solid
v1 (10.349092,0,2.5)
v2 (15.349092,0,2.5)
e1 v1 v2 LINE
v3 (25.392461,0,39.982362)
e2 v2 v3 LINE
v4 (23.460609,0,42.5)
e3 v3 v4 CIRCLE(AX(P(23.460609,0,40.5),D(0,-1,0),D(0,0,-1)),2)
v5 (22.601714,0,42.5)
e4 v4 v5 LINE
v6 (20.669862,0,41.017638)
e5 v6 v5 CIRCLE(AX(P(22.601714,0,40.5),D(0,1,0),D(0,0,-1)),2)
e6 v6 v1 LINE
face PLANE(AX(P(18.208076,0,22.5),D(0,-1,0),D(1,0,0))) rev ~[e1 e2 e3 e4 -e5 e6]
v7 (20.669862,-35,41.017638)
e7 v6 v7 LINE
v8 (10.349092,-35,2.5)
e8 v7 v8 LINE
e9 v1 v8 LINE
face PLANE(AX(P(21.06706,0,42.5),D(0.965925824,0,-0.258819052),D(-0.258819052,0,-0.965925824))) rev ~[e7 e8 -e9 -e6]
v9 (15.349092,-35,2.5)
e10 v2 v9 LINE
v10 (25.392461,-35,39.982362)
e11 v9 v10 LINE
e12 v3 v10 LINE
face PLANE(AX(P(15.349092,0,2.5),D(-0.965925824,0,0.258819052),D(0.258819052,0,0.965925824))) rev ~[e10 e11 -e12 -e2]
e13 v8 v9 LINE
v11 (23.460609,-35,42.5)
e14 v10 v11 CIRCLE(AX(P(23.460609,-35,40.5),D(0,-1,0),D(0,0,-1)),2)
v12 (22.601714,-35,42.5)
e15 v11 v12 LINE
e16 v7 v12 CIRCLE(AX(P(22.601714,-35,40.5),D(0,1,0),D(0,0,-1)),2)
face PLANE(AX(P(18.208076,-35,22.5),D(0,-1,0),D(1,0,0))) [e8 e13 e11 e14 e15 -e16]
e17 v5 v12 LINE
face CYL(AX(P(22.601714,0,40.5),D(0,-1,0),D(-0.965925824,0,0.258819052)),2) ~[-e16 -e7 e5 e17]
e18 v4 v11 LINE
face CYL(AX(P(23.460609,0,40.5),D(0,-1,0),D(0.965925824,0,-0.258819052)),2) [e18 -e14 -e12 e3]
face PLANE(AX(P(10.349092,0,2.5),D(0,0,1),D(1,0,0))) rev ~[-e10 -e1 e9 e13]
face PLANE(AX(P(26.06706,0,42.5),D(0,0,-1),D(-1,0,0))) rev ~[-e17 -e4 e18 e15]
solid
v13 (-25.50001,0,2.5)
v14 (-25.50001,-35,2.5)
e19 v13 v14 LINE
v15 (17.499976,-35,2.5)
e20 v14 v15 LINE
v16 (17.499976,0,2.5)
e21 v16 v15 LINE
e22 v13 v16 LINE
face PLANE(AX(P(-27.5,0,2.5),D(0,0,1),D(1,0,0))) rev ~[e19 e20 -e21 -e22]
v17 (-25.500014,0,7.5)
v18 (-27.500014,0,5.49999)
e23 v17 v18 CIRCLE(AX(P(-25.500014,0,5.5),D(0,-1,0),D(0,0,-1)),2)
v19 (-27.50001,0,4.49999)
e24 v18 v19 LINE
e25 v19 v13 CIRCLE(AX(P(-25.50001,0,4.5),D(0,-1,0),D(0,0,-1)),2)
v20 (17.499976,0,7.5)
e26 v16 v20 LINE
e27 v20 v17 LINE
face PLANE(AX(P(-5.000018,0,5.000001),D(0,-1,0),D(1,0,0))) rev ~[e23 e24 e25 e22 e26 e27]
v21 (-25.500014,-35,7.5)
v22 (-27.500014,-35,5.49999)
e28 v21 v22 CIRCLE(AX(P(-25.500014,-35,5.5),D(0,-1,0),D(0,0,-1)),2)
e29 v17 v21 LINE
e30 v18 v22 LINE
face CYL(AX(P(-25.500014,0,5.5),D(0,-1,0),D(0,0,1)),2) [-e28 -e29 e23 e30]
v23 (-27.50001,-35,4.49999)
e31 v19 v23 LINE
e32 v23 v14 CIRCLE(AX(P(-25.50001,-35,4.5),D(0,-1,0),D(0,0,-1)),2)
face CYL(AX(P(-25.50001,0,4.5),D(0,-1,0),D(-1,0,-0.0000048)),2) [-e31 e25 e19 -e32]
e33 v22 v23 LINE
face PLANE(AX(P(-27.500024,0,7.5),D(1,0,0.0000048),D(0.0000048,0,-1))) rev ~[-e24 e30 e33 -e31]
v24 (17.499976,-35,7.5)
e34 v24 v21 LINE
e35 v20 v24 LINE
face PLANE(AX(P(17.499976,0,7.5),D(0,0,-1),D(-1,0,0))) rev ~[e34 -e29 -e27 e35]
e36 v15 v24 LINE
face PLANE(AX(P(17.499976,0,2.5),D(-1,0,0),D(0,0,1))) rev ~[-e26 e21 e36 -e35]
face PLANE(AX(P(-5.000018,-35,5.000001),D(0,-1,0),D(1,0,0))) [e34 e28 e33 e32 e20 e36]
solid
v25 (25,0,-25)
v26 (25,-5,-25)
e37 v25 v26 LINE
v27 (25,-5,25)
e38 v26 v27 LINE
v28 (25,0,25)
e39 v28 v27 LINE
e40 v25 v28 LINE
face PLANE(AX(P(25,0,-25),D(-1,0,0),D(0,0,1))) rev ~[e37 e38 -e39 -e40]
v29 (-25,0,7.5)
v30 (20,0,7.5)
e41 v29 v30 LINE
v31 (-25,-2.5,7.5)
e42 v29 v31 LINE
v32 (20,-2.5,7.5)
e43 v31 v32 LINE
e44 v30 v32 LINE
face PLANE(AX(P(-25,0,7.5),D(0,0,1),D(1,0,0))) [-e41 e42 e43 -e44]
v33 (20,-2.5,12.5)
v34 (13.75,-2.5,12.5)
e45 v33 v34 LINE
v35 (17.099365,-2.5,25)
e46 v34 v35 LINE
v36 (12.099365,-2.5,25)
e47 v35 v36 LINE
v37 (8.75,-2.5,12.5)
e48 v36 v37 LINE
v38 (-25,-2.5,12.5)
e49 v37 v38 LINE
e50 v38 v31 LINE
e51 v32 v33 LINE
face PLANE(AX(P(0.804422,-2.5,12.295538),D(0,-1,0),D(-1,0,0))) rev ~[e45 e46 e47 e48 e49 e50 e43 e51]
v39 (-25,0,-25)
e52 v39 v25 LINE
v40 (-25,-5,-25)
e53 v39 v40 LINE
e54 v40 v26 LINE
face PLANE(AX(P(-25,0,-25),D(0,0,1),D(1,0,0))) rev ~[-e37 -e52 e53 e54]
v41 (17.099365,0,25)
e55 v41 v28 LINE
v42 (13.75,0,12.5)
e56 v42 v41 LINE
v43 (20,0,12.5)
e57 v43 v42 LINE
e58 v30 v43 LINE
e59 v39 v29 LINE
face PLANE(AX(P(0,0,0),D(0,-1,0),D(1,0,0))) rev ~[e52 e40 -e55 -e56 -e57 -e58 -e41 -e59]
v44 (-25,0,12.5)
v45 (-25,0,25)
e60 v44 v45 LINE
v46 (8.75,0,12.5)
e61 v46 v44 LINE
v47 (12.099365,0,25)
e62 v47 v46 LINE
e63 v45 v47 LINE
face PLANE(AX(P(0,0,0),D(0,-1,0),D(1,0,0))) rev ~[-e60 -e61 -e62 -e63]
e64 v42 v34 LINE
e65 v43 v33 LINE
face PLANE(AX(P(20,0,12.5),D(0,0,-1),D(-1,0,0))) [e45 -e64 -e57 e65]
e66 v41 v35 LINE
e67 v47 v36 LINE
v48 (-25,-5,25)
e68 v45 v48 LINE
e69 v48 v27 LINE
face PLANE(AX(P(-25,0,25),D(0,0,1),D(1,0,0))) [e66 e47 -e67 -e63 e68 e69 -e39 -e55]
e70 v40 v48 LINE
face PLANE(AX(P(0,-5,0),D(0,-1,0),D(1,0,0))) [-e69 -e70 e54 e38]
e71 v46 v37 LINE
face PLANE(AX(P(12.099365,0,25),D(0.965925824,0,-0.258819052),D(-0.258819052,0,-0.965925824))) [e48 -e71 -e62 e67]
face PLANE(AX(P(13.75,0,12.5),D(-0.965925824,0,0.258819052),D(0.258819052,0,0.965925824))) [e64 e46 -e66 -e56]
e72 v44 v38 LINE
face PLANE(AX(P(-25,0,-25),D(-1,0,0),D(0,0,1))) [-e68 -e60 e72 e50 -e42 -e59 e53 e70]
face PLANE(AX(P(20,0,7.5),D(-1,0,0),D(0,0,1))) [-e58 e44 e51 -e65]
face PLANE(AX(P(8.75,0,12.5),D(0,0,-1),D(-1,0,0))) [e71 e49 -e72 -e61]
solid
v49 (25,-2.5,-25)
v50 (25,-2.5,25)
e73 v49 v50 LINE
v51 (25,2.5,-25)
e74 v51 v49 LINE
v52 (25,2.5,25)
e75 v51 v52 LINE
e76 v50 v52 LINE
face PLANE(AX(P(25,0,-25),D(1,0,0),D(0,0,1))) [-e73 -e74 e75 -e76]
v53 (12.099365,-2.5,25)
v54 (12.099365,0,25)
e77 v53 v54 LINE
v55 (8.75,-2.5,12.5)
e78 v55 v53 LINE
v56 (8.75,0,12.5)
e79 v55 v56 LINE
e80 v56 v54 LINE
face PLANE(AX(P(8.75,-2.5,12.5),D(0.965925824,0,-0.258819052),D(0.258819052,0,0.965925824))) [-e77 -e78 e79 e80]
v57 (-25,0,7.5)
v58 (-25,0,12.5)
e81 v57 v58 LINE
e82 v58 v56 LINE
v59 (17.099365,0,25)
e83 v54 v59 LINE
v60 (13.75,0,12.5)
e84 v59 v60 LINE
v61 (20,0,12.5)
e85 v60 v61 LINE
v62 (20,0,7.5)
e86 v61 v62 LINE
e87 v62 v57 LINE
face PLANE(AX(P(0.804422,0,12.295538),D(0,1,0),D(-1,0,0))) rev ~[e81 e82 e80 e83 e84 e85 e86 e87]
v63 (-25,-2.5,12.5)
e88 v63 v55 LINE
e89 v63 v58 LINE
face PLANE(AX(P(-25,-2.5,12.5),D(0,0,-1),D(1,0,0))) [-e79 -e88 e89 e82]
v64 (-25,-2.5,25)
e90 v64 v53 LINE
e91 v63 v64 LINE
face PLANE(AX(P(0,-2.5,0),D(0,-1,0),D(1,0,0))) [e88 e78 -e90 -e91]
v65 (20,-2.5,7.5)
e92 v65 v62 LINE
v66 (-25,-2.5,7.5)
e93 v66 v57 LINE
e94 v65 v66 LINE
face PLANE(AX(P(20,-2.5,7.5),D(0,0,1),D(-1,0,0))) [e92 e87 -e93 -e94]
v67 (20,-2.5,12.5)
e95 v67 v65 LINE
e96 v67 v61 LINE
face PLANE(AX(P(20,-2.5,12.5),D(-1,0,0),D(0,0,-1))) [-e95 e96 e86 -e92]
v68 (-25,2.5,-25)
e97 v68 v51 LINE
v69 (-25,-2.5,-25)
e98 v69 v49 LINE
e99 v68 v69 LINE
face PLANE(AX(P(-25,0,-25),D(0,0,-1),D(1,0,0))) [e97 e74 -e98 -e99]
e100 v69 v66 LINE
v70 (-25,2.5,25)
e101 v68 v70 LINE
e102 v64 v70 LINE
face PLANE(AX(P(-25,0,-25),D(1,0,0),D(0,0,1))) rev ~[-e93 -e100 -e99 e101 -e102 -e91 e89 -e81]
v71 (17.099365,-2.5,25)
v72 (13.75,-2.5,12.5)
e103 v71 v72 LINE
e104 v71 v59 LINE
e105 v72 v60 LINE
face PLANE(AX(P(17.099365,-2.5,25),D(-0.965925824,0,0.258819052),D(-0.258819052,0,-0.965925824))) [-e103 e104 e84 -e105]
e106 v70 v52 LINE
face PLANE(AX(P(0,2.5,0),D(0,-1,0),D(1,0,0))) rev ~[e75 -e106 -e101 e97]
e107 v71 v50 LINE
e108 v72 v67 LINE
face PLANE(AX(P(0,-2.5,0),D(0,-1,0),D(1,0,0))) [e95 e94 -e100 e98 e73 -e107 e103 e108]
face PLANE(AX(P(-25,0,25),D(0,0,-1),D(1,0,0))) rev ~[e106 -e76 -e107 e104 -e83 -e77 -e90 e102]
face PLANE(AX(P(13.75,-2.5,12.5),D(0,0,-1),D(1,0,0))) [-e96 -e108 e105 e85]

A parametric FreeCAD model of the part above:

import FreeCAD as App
import Part
import Sketcher
from FreeCAD import Vector
Q = App.Units.Quantity


def edges_at(feature, points):
    """Names of the edges that pass closest to the given points."""
    edges = feature.Shape.Edges
    near = lambda p: min(range(len(edges)), key=lambda i: edges[i].distToShape(Part.Vertex(*p))[0])
    return sorted({f"Edge{near(p) + 1}" for p in points})

doc = App.newDocument("Part")
params = doc.addObject("Spreadsheet::Sheet", "Params")
for row, (alias, value) in enumerate([
    ("sketch1_width", "50 mm"),
    ("pad1_length", "5 mm"),
    ("sketch2_width", "45 mm"),
    ("sketch2_width2", "5 mm"),
    ("sketch2_width3", "6.25 mm"),
    ("pocket1_length", "2.5 mm"),
    ("sketch3_width", "45 mm"),
    ("sketch3_height", "5 mm"),
    ("pad2_length", "35 mm"),
    ("fillet_radius", "2 mm"),
    ("sketch4_width", "5 mm"),
    ("pad3_length", "35 mm"),
    ("fillet2_radius", "2 mm"),
    ("sketch5_width", "50 mm"),
    ("pad4_length", "5 mm"),
    ("sketch6_width", "5 mm"),
    ("sketch6_width2", "45 mm"),
    ("sketch6_width3", "33.75 mm"),
    ("pocket2_length", "2.5 mm"),
], start=1):
    params.set(f"A{row}", alias)
    params.set(f"B{row}", "=" + value)
    params.setAlias(f"B{row}", alias)

body = doc.addObject("PartDesign::Body", "Body")

sketch1 = body.newObject("Sketcher::SketchObject", "Sketch")
sketch1.AttachmentSupport = (doc.getObject("XZ_Plane"), [""])
sketch1.MapMode = "FlatFace"
sketch1.addGeometry(Part.LineSegment(Vector(-25, 25, 0), Vector(-25, -25, 0)), False)
sketch1.addGeometry(Part.LineSegment(Vector(-25, -25, 0), Vector(25, -25, 0)), False)
sketch1.addGeometry(Part.LineSegment(Vector(25, -25, 0), Vector(25, 25, 0)), False)
sketch1.addGeometry(Part.LineSegment(Vector(25, 25, 0), Vector(-25, 25, 0)), False)
sketch1.addConstraint(Sketcher.Constraint("Coincident", 0, 2, 1, 1))
sketch1.addConstraint(Sketcher.Constraint("Coincident", 1, 2, 2, 1))
sketch1.addConstraint(Sketcher.Constraint("Coincident", 2, 2, 3, 1))
sketch1.addConstraint(Sketcher.Constraint("Coincident", 3, 2, 0, 1))
sketch1.addConstraint(Sketcher.Constraint("Vertical", 0))
sketch1.addConstraint(Sketcher.Constraint("Horizontal", 1))
sketch1.addConstraint(Sketcher.Constraint("Vertical", 2))
sketch1.addConstraint(Sketcher.Constraint("Horizontal", 3))
sketch1.addConstraint(Sketcher.Constraint("Symmetric", 0, 2, 2, 2, -1, 1))
sketch1.addConstraint(Sketcher.Constraint("Equal", 3, 0))
sketch1.addConstraint(Sketcher.Constraint("DistanceX", 1, 1, 1, 2, Q("50 mm")))
sketch1.setExpression("Constraints[10]", "Params.sketch1_width")
pad1 = body.newObject("PartDesign::Pad", "Pad")
pad1.Profile = sketch1
pad1.setExpression("Length", "Params.pad1_length")
pad1.Midplane = True

sketch2 = body.newObject("Sketcher::SketchObject", "Sketch001")
sketch2.AttachmentSupport = (doc.getObject("XZ_Plane"), [""])
sketch2.MapMode = "FlatFace"
sketch2.AttachmentOffset = App.Placement(Vector(0, 0, 2.5), App.Rotation())
sketch2.addGeometry(Part.LineSegment(Vector(-25, 12.5, 0), Vector(-25, 7.5, 0)), False)
sketch2.addGeometry(Part.LineSegment(Vector(-25, 7.5, 0), Vector(20, 7.5, 0)), False)
sketch2.addGeometry(Part.LineSegment(Vector(20, 7.5, 0), Vector(20, 12.5, 0)), False)
sketch2.addGeometry(Part.LineSegment(Vector(20, 12.5, 0), Vector(13.8, 12.5, 0)), False)
sketch2.addGeometry(Part.LineSegment(Vector(13.8, 12.5, 0), Vector(17.1, 25, 0)), False)
sketch2.addGeometry(Part.LineSegment(Vector(17.1, 25, 0), Vector(12.1, 25, 0)), False)
sketch2.addGeometry(Part.LineSegment(Vector(12.1, 25, 0), Vector(8.8, 12.5, 0)), False)
sketch2.addGeometry(Part.LineSegment(Vector(8.8, 12.5, 0), Vector(-25, 12.5, 0)), False)
sketch2.addConstraint(Sketcher.Constraint("Coincident", 0, 2, 1, 1))
sketch2.addConstraint(Sketcher.Constraint("Coincident", 1, 2, 2, 1))
sketch2.addConstraint(Sketcher.Constraint("Coincident", 2, 2, 3, 1))
sketch2.addConstraint(Sketcher.Constraint("Coincident", 3, 2, 4, 1))
sketch2.addConstraint(Sketcher.Constraint("Coincident", 4, 2, 5, 1))
sketch2.addConstraint(Sketcher.Constraint("Coincident", 5, 2, 6, 1))
sketch2.addConstraint(Sketcher.Constraint("Coincident", 6, 2, 7, 1))
sketch2.addConstraint(Sketcher.Constraint("Coincident", 7, 2, 0, 1))
sketch2.addConstraint(Sketcher.Constraint("Vertical", 0))
sketch2.addConstraint(Sketcher.Constraint("Horizontal", 1))
sketch2.addConstraint(Sketcher.Constraint("Vertical", 2))
sketch2.addConstraint(Sketcher.Constraint("Horizontal", 3))
sketch2.addConstraint(Sketcher.Constraint("Horizontal", 5))
sketch2.addConstraint(Sketcher.Constraint("Horizontal", 7))
sketch2.addConstraint(Sketcher.Constraint("Parallel", 4, 6))
sketch2.addConstraint(Sketcher.Constraint("Horizontal", 3, 2, 6, 2))
sketch2.addConstraint(Sketcher.Constraint("Equal", 5, 0))
sketch2.addConstraint(Sketcher.Constraint("DistanceX", 1, 1, 1, 2, Q("45 mm")))
sketch2.addConstraint(Sketcher.Constraint("DistanceX", 5, 2, 5, 1, Q("5 mm")))
sketch2.addConstraint(Sketcher.Constraint("Angle", 4, Q("75 deg")))
sketch2.addConstraint(Sketcher.Constraint("DistanceX", 0, 2, -1, 1, Q("25 mm")))
sketch2.addConstraint(Sketcher.Constraint("DistanceY", -1, 1, 4, 2, Q("25 mm")))
sketch2.addConstraint(Sketcher.Constraint("DistanceX", 3, 2, 3, 1, Q("6.25 mm")))
sketch2.addConstraint(Sketcher.Constraint("DistanceY", -1, 1, 0, 2, Q("7.5 mm")))
sketch2.setExpression("Constraints[17]", "Params.sketch2_width")
sketch2.setExpression("Constraints[18]", "Params.sketch2_width2")
sketch2.setExpression("Constraints[22]", "Params.sketch2_width3")
pocket1 = body.newObject("PartDesign::Pocket", "Pocket")
pocket1.Profile = sketch2
pocket1.setExpression("Length", "Params.pocket1_length")
body2 = doc.addObject("PartDesign::Body", "Body001")

sketch3 = body2.newObject("Sketcher::SketchObject", "Sketch002")
sketch3.AttachmentSupport = (doc.getObject("XZ_Plane001"), [""])
sketch3.MapMode = "FlatFace"
sketch3.addGeometry(Part.LineSegment(Vector(17, 2, 0), Vector(17, 8, 0)), False)
sketch3.addGeometry(Part.LineSegment(Vector(17, 8, 0), Vector(-28, 8, 0)), False)
sketch3.addGeometry(Part.LineSegment(Vector(-28, 8, 0), Vector(-28, 2, 0)), False)
sketch3.addGeometry(Part.LineSegment(Vector(-28, 2, 0), Vector(17, 2, 0)), False)
sketch3.addConstraint(Sketcher.Constraint("Coincident", 0, 2, 1, 1))
sketch3.addConstraint(Sketcher.Constraint("Coincident", 1, 2, 2, 1))
sketch3.addConstraint(Sketcher.Constraint("Coincident", 2, 2, 3, 1))
sketch3.addConstraint(Sketcher.Constraint("Coincident", 3, 2, 0, 1))
sketch3.addConstraint(Sketcher.Constraint("Vertical", 0))
sketch3.addConstraint(Sketcher.Constraint("Horizontal", 1))
sketch3.addConstraint(Sketcher.Constraint("Horizontal", 3))
sketch3.addConstraint(Sketcher.Constraint("DistanceX", 1, 2, 1, 1, Q("45 mm")))
sketch3.addConstraint(Sketcher.Constraint("DistanceY", 0, 1, 0, 2, Q("5 mm")))
sketch3.addConstraint(Sketcher.Constraint("DistanceY", -1, 1, 0, 2, Q("7.5 mm")))
sketch3.addConstraint(Sketcher.Constraint("DistanceX", 2, 2, -1, 1, Q("27.5 mm")))
sketch3.addConstraint(Sketcher.Constraint("DistanceX", 3, 1, 3, 2, Q("44.999976 mm")))
sketch3.setExpression("Constraints[7]", "Params.sketch3_width")
sketch3.setExpression("Constraints[8]", "Params.sketch3_height")
pad2 = body2.newObject("PartDesign::Pad", "Pad001")
pad2.Profile = sketch3
pad2.setExpression("Length", "Params.pad2_length")
doc.recompute()

fillet = body2.newObject("PartDesign::Fillet", "Fillet")
fillet.Base = (pad2, edges_at(pad2, [(-27.5, -17.5, 7.5), (-27.5, -17.5, 2.5)]))
fillet.setExpression("Radius", "Params.fillet_radius")
body3 = doc.addObject("PartDesign::Body", "Body002")

sketch4 = body3.newObject("Sketcher::SketchObject", "Sketch003")
sketch4.AttachmentSupport = (doc.getObject("XZ_Plane002"), [""])
sketch4.MapMode = "FlatFace"
sketch4.addGeometry(Part.LineSegment(Vector(21, 42, 0), Vector(10, 2, 0)), False)
sketch4.addGeometry(Part.LineSegment(Vector(10, 2, 0), Vector(15, 2, 0)), False)
sketch4.addGeometry(Part.LineSegment(Vector(15, 2, 0), Vector(26, 42, 0)), False)
sketch4.addGeometry(Part.LineSegment(Vector(26, 42, 0), Vector(21, 42, 0)), False)
sketch4.addConstraint(Sketcher.Constraint("Coincident", 0, 2, 1, 1))
sketch4.addConstraint(Sketcher.Constraint("Coincident", 1, 2, 2, 1))
sketch4.addConstraint(Sketcher.Constraint("Coincident", 2, 2, 3, 1))
sketch4.addConstraint(Sketcher.Constraint("Coincident", 3, 2, 0, 1))
sketch4.addConstraint(Sketcher.Constraint("Horizontal", 1))
sketch4.addConstraint(Sketcher.Constraint("Horizontal", 3))
sketch4.addConstraint(Sketcher.Constraint("Parallel", 0, 2))
sketch4.addConstraint(Sketcher.Constraint("DistanceX", 1, 1, 1, 2, Q("5 mm")))
sketch4.addConstraint(Sketcher.Constraint("Angle", 0, Q("-105 deg")))
sketch4.addConstraint(Sketcher.Constraint("DistanceY", 1, 2, 2, 2, Q("40 mm")))
sketch4.addConstraint(Sketcher.Constraint("DistanceY", -1, 1, 0, 2, Q("2.5 mm")))
sketch4.addConstraint(Sketcher.Constraint("DistanceX", -1, 1, 2, 2, Q("26.06706 mm")))
sketch4.setExpression("Constraints[7]", "Params.sketch4_width")
pad3 = body3.newObject("PartDesign::Pad", "Pad002")
pad3.Profile = sketch4
pad3.setExpression("Length", "Params.pad3_length")
doc.recompute()

fillet2 = body3.newObject("PartDesign::Fillet", "Fillet001")
fillet2.Base = (pad3, edges_at(pad3, [(21.067, -17.5, 42.5), (26.067, -17.5, 42.5)]))
fillet2.setExpression("Radius", "Params.fillet2_radius")
body4 = doc.addObject("PartDesign::Body", "Body003")

sketch5 = body4.newObject("Sketcher::SketchObject", "Sketch004")
sketch5.AttachmentSupport = (doc.getObject("XZ_Plane003"), [""])
sketch5.MapMode = "FlatFace"
sketch5.addGeometry(Part.LineSegment(Vector(-25, 25, 0), Vector(-25, -25, 0)), False)
sketch5.addGeometry(Part.LineSegment(Vector(-25, -25, 0), Vector(25, -25, 0)), False)
sketch5.addGeometry(Part.LineSegment(Vector(25, -25, 0), Vector(25, 25, 0)), False)
sketch5.addGeometry(Part.LineSegment(Vector(25, 25, 0), Vector(-25, 25, 0)), False)
sketch5.addConstraint(Sketcher.Constraint("Coincident", 0, 2, 1, 1))
sketch5.addConstraint(Sketcher.Constraint("Coincident", 1, 2, 2, 1))
sketch5.addConstraint(Sketcher.Constraint("Coincident", 2, 2, 3, 1))
sketch5.addConstraint(Sketcher.Constraint("Coincident", 3, 2, 0, 1))
sketch5.addConstraint(Sketcher.Constraint("Vertical", 0))
sketch5.addConstraint(Sketcher.Constraint("Horizontal", 1))
sketch5.addConstraint(Sketcher.Constraint("Vertical", 2))
sketch5.addConstraint(Sketcher.Constraint("Horizontal", 3))
sketch5.addConstraint(Sketcher.Constraint("Symmetric", 0, 2, 2, 2, -1, 1))
sketch5.addConstraint(Sketcher.Constraint("Equal", 3, 0))
sketch5.addConstraint(Sketcher.Constraint("DistanceX", 1, 1, 1, 2, Q("50 mm")))
sketch5.setExpression("Constraints[10]", "Params.sketch5_width")
pad4 = body4.newObject("PartDesign::Pad", "Pad003")
pad4.Profile = sketch5
pad4.setExpression("Length", "Params.pad4_length")

sketch6 = body4.newObject("Sketcher::SketchObject", "Sketch005")
sketch6.AttachmentSupport = (doc.getObject("XZ_Plane003"), [""])
sketch6.MapMode = "FlatFace"
sketch6.addGeometry(Part.LineSegment(Vector(-25, 7.5, 0), Vector(-25, 12.5, 0)), False)
sketch6.addGeometry(Part.LineSegment(Vector(-25, 12.5, 0), Vector(8.8, 12.5, 0)), False)
sketch6.addGeometry(Part.LineSegment(Vector(8.8, 12.5, 0), Vector(12.1, 25, 0)), False)
sketch6.addGeometry(Part.LineSegment(Vector(12.1, 25, 0), Vector(17.1, 25, 0)), False)
sketch6.addGeometry(Part.LineSegment(Vector(17.1, 25, 0), Vector(13.8, 12.5, 0)), False)
sketch6.addGeometry(Part.LineSegment(Vector(13.8, 12.5, 0), Vector(20, 12.5, 0)), False)
sketch6.addGeometry(Part.LineSegment(Vector(20, 12.5, 0), Vector(20, 7.5, 0)), False)
sketch6.addGeometry(Part.LineSegment(Vector(20, 7.5, 0), Vector(-25, 7.5, 0)), False)
sketch6.addConstraint(Sketcher.Constraint("Coincident", 0, 2, 1, 1))
sketch6.addConstraint(Sketcher.Constraint("Coincident", 1, 2, 2, 1))
sketch6.addConstraint(Sketcher.Constraint("Coincident", 2, 2, 3, 1))
sketch6.addConstraint(Sketcher.Constraint("Coincident", 3, 2, 4, 1))
sketch6.addConstraint(Sketcher.Constraint("Coincident", 4, 2, 5, 1))
sketch6.addConstraint(Sketcher.Constraint("Coincident", 5, 2, 6, 1))
sketch6.addConstraint(Sketcher.Constraint("Coincident", 6, 2, 7, 1))
sketch6.addConstraint(Sketcher.Constraint("Coincident", 7, 2, 0, 1))
sketch6.addConstraint(Sketcher.Constraint("Vertical", 0))
sketch6.addConstraint(Sketcher.Constraint("Horizontal", 1))
sketch6.addConstraint(Sketcher.Constraint("Horizontal", 3))
sketch6.addConstraint(Sketcher.Constraint("Horizontal", 5))
sketch6.addConstraint(Sketcher.Constraint("Vertical", 6))
sketch6.addConstraint(Sketcher.Constraint("Horizontal", 7))
sketch6.addConstraint(Sketcher.Constraint("Parallel", 2, 4))
sketch6.addConstraint(Sketcher.Constraint("Horizontal", 1, 2, 4, 2))
sketch6.addConstraint(Sketcher.Constraint("Equal", 3, 0))
sketch6.addConstraint(Sketcher.Constraint("DistanceX", 3, 1, 3, 2, Q("5 mm")))
sketch6.addConstraint(Sketcher.Constraint("DistanceX", 7, 2, 7, 1, Q("45 mm")))
sketch6.addConstraint(Sketcher.Constraint("Angle", 2, Q("75 deg")))
sketch6.addConstraint(Sketcher.Constraint("DistanceX", 0, 2, -1, 1, Q("25 mm")))
sketch6.addConstraint(Sketcher.Constraint("DistanceY", -1, 1, 2, 2, Q("25 mm")))
sketch6.addConstraint(Sketcher.Constraint("DistanceX", 1, 1, 1, 2, Q("33.75 mm")))
sketch6.addConstraint(Sketcher.Constraint("DistanceY", -1, 1, 0, 2, Q("12.5 mm")))
sketch6.setExpression("Constraints[17]", "Params.sketch6_width")
sketch6.setExpression("Constraints[18]", "Params.sketch6_width2")
sketch6.setExpression("Constraints[22]", "Params.sketch6_width3")
pocket2 = body4.newObject("PartDesign::Pocket", "Pocket001")
pocket2.Profile = sketch6
pocket2.setExpression("Length", "Params.pocket2_length")
pocket2.Reversed = True

doc.recompute()
